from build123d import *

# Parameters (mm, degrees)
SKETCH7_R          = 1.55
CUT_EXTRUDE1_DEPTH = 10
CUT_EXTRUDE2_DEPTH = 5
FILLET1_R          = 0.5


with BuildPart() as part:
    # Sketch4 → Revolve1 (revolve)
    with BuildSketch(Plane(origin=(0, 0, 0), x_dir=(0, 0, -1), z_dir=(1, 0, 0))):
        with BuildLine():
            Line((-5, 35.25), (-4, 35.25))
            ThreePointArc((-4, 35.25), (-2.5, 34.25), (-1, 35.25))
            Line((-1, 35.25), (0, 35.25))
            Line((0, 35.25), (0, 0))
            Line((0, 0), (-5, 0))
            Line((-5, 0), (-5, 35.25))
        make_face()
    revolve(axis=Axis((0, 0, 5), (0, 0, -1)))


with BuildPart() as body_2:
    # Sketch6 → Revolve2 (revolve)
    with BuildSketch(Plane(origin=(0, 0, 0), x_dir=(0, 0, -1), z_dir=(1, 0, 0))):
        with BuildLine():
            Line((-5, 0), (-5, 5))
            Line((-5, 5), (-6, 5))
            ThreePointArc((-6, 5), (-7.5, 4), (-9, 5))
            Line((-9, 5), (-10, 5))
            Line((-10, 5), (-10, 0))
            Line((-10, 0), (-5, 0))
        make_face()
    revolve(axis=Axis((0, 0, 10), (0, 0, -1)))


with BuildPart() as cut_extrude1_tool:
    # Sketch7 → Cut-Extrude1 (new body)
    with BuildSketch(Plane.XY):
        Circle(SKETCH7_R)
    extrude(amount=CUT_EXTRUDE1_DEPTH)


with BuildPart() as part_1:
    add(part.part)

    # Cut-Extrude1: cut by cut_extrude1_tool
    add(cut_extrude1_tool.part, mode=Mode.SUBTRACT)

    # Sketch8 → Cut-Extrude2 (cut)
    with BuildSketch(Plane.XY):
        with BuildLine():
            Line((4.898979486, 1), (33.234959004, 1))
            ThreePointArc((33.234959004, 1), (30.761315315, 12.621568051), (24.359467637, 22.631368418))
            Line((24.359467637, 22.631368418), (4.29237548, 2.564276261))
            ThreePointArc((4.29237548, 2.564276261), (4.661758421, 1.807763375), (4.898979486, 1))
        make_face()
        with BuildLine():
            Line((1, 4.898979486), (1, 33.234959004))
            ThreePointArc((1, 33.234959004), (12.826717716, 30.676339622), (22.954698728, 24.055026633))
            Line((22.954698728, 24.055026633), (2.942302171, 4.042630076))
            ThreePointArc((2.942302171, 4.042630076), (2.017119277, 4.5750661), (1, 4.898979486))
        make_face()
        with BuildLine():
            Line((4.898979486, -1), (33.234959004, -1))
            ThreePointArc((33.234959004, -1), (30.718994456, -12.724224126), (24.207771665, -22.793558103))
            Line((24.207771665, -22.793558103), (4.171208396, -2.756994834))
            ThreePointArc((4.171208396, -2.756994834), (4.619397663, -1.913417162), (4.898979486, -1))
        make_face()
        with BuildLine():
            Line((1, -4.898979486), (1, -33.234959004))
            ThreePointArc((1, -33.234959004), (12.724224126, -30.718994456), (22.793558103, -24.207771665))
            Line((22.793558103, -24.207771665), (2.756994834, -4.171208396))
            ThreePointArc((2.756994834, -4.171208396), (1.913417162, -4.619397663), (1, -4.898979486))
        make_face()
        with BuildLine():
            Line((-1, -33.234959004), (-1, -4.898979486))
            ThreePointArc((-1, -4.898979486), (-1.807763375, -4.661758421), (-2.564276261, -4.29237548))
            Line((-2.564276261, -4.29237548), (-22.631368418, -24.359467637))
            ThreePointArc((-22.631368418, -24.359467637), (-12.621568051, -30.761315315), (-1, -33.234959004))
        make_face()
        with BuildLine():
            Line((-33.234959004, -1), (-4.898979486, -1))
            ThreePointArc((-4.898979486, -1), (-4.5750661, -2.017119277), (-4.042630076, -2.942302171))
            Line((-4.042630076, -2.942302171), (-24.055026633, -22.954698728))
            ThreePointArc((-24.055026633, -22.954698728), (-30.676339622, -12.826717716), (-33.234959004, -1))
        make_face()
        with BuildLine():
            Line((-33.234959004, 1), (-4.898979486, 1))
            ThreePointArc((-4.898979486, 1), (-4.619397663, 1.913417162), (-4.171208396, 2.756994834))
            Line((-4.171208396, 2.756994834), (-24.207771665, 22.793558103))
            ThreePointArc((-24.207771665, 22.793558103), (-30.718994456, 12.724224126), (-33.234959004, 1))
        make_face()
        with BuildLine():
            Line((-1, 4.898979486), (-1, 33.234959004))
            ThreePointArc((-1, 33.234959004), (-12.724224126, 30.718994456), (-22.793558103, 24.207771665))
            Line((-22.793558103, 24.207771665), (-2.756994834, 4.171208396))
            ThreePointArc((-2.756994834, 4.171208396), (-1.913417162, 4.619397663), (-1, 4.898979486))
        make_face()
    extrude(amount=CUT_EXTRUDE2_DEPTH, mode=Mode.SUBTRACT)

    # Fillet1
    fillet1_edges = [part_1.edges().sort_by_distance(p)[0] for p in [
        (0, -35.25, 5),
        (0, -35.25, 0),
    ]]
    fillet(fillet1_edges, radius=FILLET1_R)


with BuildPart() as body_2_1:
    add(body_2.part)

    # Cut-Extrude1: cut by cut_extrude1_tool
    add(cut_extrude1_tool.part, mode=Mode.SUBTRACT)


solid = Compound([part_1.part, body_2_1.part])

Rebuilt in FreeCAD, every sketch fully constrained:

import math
import FreeCAD as App
import Part
import Sketcher
Q = App.Units.Quantity


def edges_at(feature, points):
    """Names of the edges that pass closest to the given points."""
    edges = feature.Shape.Edges
    near = lambda p: min(range(len(edges)), key=lambda i: edges[i].distToShape(Part.Vertex(*p))[0])
    return sorted({f"Edge{near(p) + 1}" for p in points})

doc = App.newDocument("Part")
body = doc.addObject("PartDesign::Body", "Body")

sketch1 = body.newObject("Sketcher::SketchObject", "Sketch")
sketch1.AttachmentSupport = (doc.getObject("YZ_Plane"), [""])
sketch1.MapMode = "FlatFace"
sketch1.addGeometry(Part.LineSegment(App.Vector(35.25, 4, 0), App.Vector(35.25, 5, 0)), False)
sketch1.addGeometry(Part.LineSegment(App.Vector(35.25, 5, 0), App.Vector(0, 5, 0)), False)
sketch1.addGeometry(Part.LineSegment(App.Vector(0, 5, 0), App.Vector(0, 0, 0)), False)
sketch1.addGeometry(Part.LineSegment(App.Vector(0, 0, 0), App.Vector(35.25, 0, 0)), False)
sketch1.addGeometry(Part.LineSegment(App.Vector(35.25, 0, 0), App.Vector(35.25, 1, 0)), False)
sketch1.addGeometry(Part.ArcOfCircle(Part.Circle(App.Vector(35.875, 2.5, 0), App.Vector(0, 0, 1), 1.625), math.radians(112.619865), math.radians(247.380135)), False)
sketch1.addConstraint(Sketcher.Constraint("Coincident", 0, 2, 1, 1))
sketch1.addConstraint(Sketcher.Constraint("Coincident", 1, 2, 2, 1))
sketch1.addConstraint(Sketcher.Constraint("Coincident", 2, 2, 3, 1))
sketch1.addConstraint(Sketcher.Constraint("Coincident", 3, 2, 4, 1))
sketch1.addConstraint(Sketcher.Constraint("Coincident", 4, 2, 5, 2))
sketch1.addConstraint(Sketcher.Constraint("Coincident", 5, 1, 0, 1))
sketch1.addConstraint(Sketcher.Constraint("Vertical", 0))
sketch1.addConstraint(Sketcher.Constraint("Horizontal", 1))
sketch1.addConstraint(Sketcher.Constraint("Vertical", 2))
sketch1.addConstraint(Sketcher.Constraint("Horizontal", 3))
sketch1.addConstraint(Sketcher.Constraint("Vertical", 4))
sketch1.addConstraint(Sketcher.Constraint("Coincident", 2, 2, -1, 1))
sketch1.addConstraint(Sketcher.Constraint("Vertical", 0, 2, 3, 2))
sketch1.addConstraint(Sketcher.Constraint("Equal", 0, 4))
sketch1.addConstraint(Sketcher.Constraint("DistanceY", 0, 1, 0, 2, 1.0))
sketch1.addConstraint(Sketcher.Constraint("DistanceY", 2, 2, 2, 1, 5.0))
sketch1.addConstraint(Sketcher.Constraint("Radius", 5, 1.625))
sketch1.addConstraint(Sketcher.Constraint("DistanceX", 1, 2, 1, 1, 35.25))
revolution = body.newObject("PartDesign::Revolution", "Revolution")
revolution.Profile = sketch1
revolution.ReferenceAxis = (sketch1, ["V_Axis"])
revolution.Angle = 360
body2 = doc.addObject("PartDesign::Body", "Body001")

sketch2 = body2.newObject("Sketcher::SketchObject", "Sketch001")
sketch2.AttachmentSupport = (doc.getObject("YZ_Plane001"), [""])
sketch2.MapMode = "FlatFace"
sketch2.addGeometry(Part.LineSegment(App.Vector(0, 5, 0), App.Vector(5, 5, 0)), False)
sketch2.addGeometry(Part.LineSegment(App.Vector(5, 5, 0), App.Vector(5, 6, 0)), False)
sketch2.addGeometry(Part.ArcOfCircle(Part.Circle(App.Vector(5.625, 7.5, 0), App.Vector(0, 0, 1), 1.625), math.radians(112.619865), math.radians(247.380135)), False)
sketch2.addGeometry(Part.LineSegment(App.Vector(5, 9, 0), App.Vector(5, 10, 0)), False)
sketch2.addGeometry(Part.LineSegment(App.Vector(5, 10, 0), App.Vector(0, 10, 0)), False)
sketch2.addGeometry(Part.LineSegment(App.Vector(0, 10, 0), App.Vector(0, 5, 0)), False)
sketch2.addConstraint(Sketcher.Constraint("Coincident", 0, 2, 1, 1))
sketch2.addConstraint(Sketcher.Constraint("Coincident", 1, 2, 2, 2))
sketch2.addConstraint(Sketcher.Constraint("Coincident", 2, 1, 3, 1))
sketch2.addConstraint(Sketcher.Constraint("Coincident", 3, 2, 4, 1))
sketch2.addConstraint(Sketcher.Constraint("Coincident", 4, 2, 5, 1))
sketch2.addConstraint(Sketcher.Constraint("Coincident", 5, 2, 0, 1))
sketch2.addConstraint(Sketcher.Constraint("Horizontal", 0))
sketch2.addConstraint(Sketcher.Constraint("Vertical", 1))
sketch2.addConstraint(Sketcher.Constraint("Vertical", 3))
sketch2.addConstraint(Sketcher.Constraint("Horizontal", 4))
sketch2.addConstraint(Sketcher.Constraint("Vertical", 5))
sketch2.addConstraint(Sketcher.Constraint("PointOnObject", 4, 2, -2))
sketch2.addConstraint(Sketcher.Constraint("Vertical", 1, 2, 2, 1))
sketch2.addConstraint(Sketcher.Constraint("Equal", 1, 3))
sketch2.addConstraint(Sketcher.Constraint("Equal", 4, 5))
sketch2.addConstraint(Sketcher.Constraint("DistanceX", 0, 1, 0, 2, 5.0))
sketch2.addConstraint(Sketcher.Constraint("DistanceY", 1, 1, 1, 2, 1.0))
sketch2.addConstraint(Sketcher.Constraint("DistanceY", -1, 1, 0, 2, 5.0))
sketch2.addConstraint(Sketcher.Constraint("Radius", 2, 1.625))
revolution2 = body2.newObject("PartDesign::Revolution", "Revolution001")
revolution2.Profile = sketch2
revolution2.ReferenceAxis = (sketch2, ["V_Axis"])
revolution2.Angle = 360
body3 = doc.addObject("PartDesign::Body", "Body002")

sketch3 = body3.newObject("Sketcher::SketchObject", "Sketch002")
sketch3.AttachmentSupport = (doc.getObject("XY_Plane002"), [""])
sketch3.MapMode = "FlatFace"
sketch3.addGeometry(Part.Circle(App.Vector(0, 0, 0), App.Vector(0, 0, 1), 1.55), False)
sketch3.addConstraint(Sketcher.Constraint("Coincident", 0, 3, -1, 1))
sketch3.addConstraint(Sketcher.Constraint("Diameter", 0, 3.1))
pad1 = body3.newObject("PartDesign::Pad", "Pad")
pad1.Profile = sketch3
pad1.Length = 10
doc.recompute()

body4 = doc.addObject("PartDesign::Body", "Body003")
body4.BaseFeature = body3
boolean = body.newObject("PartDesign::Boolean", "Boolean")
boolean.Type = "Cut"
boolean.addObjects([body4])
doc.recompute()

sketch4 = body.newObject("Sketcher::SketchObject", "Sketch003")
sketch4.AttachmentSupport = (doc.getObject("XY_Plane"), [""])
sketch4.MapMode = "FlatFace"
sketch4.addGeometry(Part.LineSegment(App.Vector(4.898979, 1, 0), App.Vector(33.234959, 1, 0)), False)
sketch4.addGeometry(Part.ArcOfCircle(Part.Circle(App.Vector(0, 0, 0), App.Vector(0, 0, 1), 33.25), math.radians(1.723441), math.radians(42.893883)), False)
sketch4.addGeometry(Part.LineSegment(App.Vector(24.359468, 22.631368, 0), App.Vector(4.292375, 2.564276, 0)), False)
sketch4.addGeometry(Part.ArcOfCircle(Part.Circle(App.Vector(0, 0, 0), App.Vector(0, 0, 1), 5), math.radians(11.536959), math.radians(30.854204)), False)
sketch4.addGeometry(Part.LineSegment(App.Vector(1, 33.234959, 0), App.Vector(1, 4.898979, 0)), False)
sketch4.addGeometry(Part.ArcOfCircle(Part.Circle(App.Vector(0, 0, 0), App.Vector(0, 0, 1), 5), math.radians(53.952168), math.radians(78.463041)), False)
sketch4.addGeometry(Part.LineSegment(App.Vector(2.942302, 4.04263, 0), App.Vector(22.954699, 24.055027, 0)), False)
sketch4.addGeometry(Part.ArcOfCircle(Part.Circle(App.Vector(0, 0, 0), App.Vector(0, 0, 1), 33.25), math.radians(46.340842), math.radians(88.276559)), False)
sketch4.addGeometry(Part.LineSegment(App.Vector(33.234959, -1, 0), App.Vector(4.898979, -1, 0)), False)
sketch4.addGeometry(Part.ArcOfCircle(Part.Circle(App.Vector(0, 0, 0), App.Vector(0, 0, 1), 5), math.radians(-33.463041), math.radians(-11.536959)), False)
sketch4.addGeometry(Part.LineSegment(App.Vector(4.171208, -2.756995, 0), App.Vector(24.207772, -22.793558, 0)), False)
sketch4.addGeometry(Part.ArcOfCircle(Part.Circle(App.Vector(0, 0, 0), App.Vector(0, 0, 1), 33.25), math.radians(-43.276559), math.radians(-1.723441)), False)
sketch4.addGeometry(Part.LineSegment(App.Vector(1, -4.898979, 0), App.Vector(1, -33.234959, 0)), False)
sketch4.addGeometry(Part.ArcOfCircle(Part.Circle(App.Vector(0, 0, 0), App.Vector(0, 0, 1), 33.25), math.radians(-88.276559), math.radians(-46.723441)), False)
sketch4.addGeometry(Part.LineSegment(App.Vector(22.793558, -24.207772, 0), App.Vector(2.756995, -4.171208, 0)), False)
sketch4.addGeometry(Part.ArcOfCircle(Part.Circle(App.Vector(0, 0, 0), App.Vector(0, 0, 1), 5), math.radians(-78.463041), math.radians(-56.536959)), False)
sketch4.addGeometry(Part.LineSegment(App.Vector(-1, -33.234959, 0), App.Vector(-1, -4.898979, 0)), False)
sketch4.addGeometry(Part.ArcOfCircle(Part.Circle(App.Vector(0, 0, 0), App.Vector(0, 0, 1), 5), math.radians(-120.854204), math.radians(-101.536959)), False)
sketch4.addGeometry(Part.LineSegment(App.Vector(-2.564276, -4.292375, 0), App.Vector(-22.631368, -24.359468, 0)), False)
sketch4.addGeometry(Part.ArcOfCircle(Part.Circle(App.Vector(0, 0, 0), App.Vector(0, 0, 1), 33.25), math.radians(-132.893883), math.radians(-91.723441)), False)
sketch4.addGeometry(Part.LineSegment(App.Vector(-4.898979, -1, 0), App.Vector(-33.234959, -1, 0)), False)
sketch4.addGeometry(Part.ArcOfCircle(Part.Circle(App.Vector(0, 0, 0), App.Vector(0, 0, 1), 33.25), math.radians(-178.276559), math.radians(-136.340842)), False)
sketch4.addGeometry(Part.LineSegment(App.Vector(-24.055027, -22.954699, 0), App.Vector(-4.04263, -2.942302, 0)), False)
sketch4.addGeometry(Part.ArcOfCircle(Part.Circle(App.Vector(0, 0, 0), App.Vector(0, 0, 1), 5), math.radians(-168.463041), math.radians(-143.952168)), False)
sketch4.addGeometry(Part.LineSegment(App.Vector(-33.234959, 1, 0), App.Vector(-4.898979, 1, 0)), False)
sketch4.addGeometry(Part.ArcOfCircle(Part.Circle(App.Vector(0, 0, 0), App.Vector(0, 0, 1), 5), math.radians(146.536959), math.radians(168.463041)), False)
sketch4.addGeometry(Part.LineSegment(App.Vector(-4.171208, 2.756995, 0), App.Vector(-24.207772, 22.793558, 0)), False)
sketch4.addGeometry(Part.ArcOfCircle(Part.Circle(App.Vector(0, 0, 0), App.Vector(0, 0, 1), 33.25), math.radians(136.723441), math.radians(178.276559)), False)
sketch4.addGeometry(Part.LineSegment(App.Vector(-1, 4.898979, 0), App.Vector(-1, 33.234959, 0)), False)
sketch4.addGeometry(Part.ArcOfCircle(Part.Circle(App.Vector(0, 0, 0), App.Vector(0, 0, 1), 33.25), math.radians(91.723441), math.radians(133.276559)), False)
sketch4.addGeometry(Part.LineSegment(App.Vector(-22.793558, 24.207772, 0), App.Vector(-2.756995, 4.171208, 0)), False)
sketch4.addGeometry(Part.ArcOfCircle(Part.Circle(App.Vector(0, 0, 0), App.Vector(0, 0, 1), 5), math.radians(101.536959), math.radians(123.463041)), False)
sketch4.addConstraint(Sketcher.Constraint("Coincident", 0, 2, 1, 1))
sketch4.addConstraint(Sketcher.Constraint("Coincident", 1, 2, 2, 1))
sketch4.addConstraint(Sketcher.Constraint("Coincident", 2, 2, 3, 2))
sketch4.addConstraint(Sketcher.Constraint("Coincident", 3, 1, 0, 1))
sketch4.addConstraint(Sketcher.Constraint("Coincident", 4, 2, 5, 2))
sketch4.addConstraint(Sketcher.Constraint("Coincident", 5, 1, 6, 1))
sketch4.addConstraint(Sketcher.Constraint("Coincident", 6, 2, 7, 1))
sketch4.addConstraint(Sketcher.Constraint("Coincident", 7, 2, 4, 1))
sketch4.addConstraint(Sketcher.Constraint("Coincident", 8, 2, 9, 2))
sketch4.addConstraint(Sketcher.Constraint("Coincident", 9, 1, 10, 1))
sketch4.addConstraint(Sketcher.Constraint("Coincident", 10, 2, 11, 1))
sketch4.addConstraint(Sketcher.Constraint("Coincident", 11, 2, 8, 1))
sketch4.addConstraint(Sketcher.Constraint("Coincident", 12, 2, 13, 1))
sketch4.addConstraint(Sketcher.Constraint("Coincident", 13, 2, 14, 1))
sketch4.addConstraint(Sketcher.Constraint("Coincident", 14, 2, 15, 2))
sketch4.addConstraint(Sketcher.Constraint("Coincident", 15, 1, 12, 1))
sketch4.addConstraint(Sketcher.Constraint("Coincident", 16, 2, 17, 2))
sketch4.addConstraint(Sketcher.Constraint("Coincident", 17, 1, 18, 1))
sketch4.addConstraint(Sketcher.Constraint("Coincident", 18, 2, 19, 1))
sketch4.addConstraint(Sketcher.Constraint("Coincident", 19, 2, 16, 1))
sketch4.addConstraint(Sketcher.Constraint("Coincident", 20, 2, 21, 1))
sketch4.addConstraint(Sketcher.Constraint("Coincident", 21, 2, 22, 1))
sketch4.addConstraint(Sketcher.Constraint("Coincident", 22, 2, 23, 2))
sketch4.addConstraint(Sketcher.Constraint("Coincident", 23, 1, 20, 1))
sketch4.addConstraint(Sketcher.Constraint("Coincident", 24, 2, 25, 2))
sketch4.addConstraint(Sketcher.Constraint("Coincident", 25, 1, 26, 1))
sketch4.addConstraint(Sketcher.Constraint("Coincident", 26, 2, 27, 1))
sketch4.addConstraint(Sketcher.Constraint("Coincident", 27, 2, 24, 1))
sketch4.addConstraint(Sketcher.Constraint("Coincident", 28, 2, 29, 1))
sketch4.addConstraint(Sketcher.Constraint("Coincident", 29, 2, 30, 1))
sketch4.addConstraint(Sketcher.Constraint("Coincident", 30, 2, 31, 2))
sketch4.addConstraint(Sketcher.Constraint("Coincident", 31, 1, 28, 1))
sketch4.addConstraint(Sketcher.Constraint("Horizontal", 0))
sketch4.addConstraint(Sketcher.Constraint("Vertical", 4))
sketch4.addConstraint(Sketcher.Constraint("Horizontal", 8))
sketch4.addConstraint(Sketcher.Constraint("Vertical", 12))
sketch4.addConstraint(Sketcher.Constraint("Vertical", 16))
sketch4.addConstraint(Sketcher.Constraint("Horizontal", 20))
sketch4.addConstraint(Sketcher.Constraint("Horizontal", 24))
sketch4.addConstraint(Sketcher.Constraint("Vertical", 28))
sketch4.addConstraint(Sketcher.Constraint("Coincident", 1, 3, -1, 1))
sketch4.addConstraint(Sketcher.Constraint("Coincident", 3, 3, -1, 1))
sketch4.addConstraint(Sketcher.Constraint("Coincident", 5, 3, -1, 1))
sketch4.addConstraint(Sketcher.Constraint("Coincident", 7, 3, -1, 1))
sketch4.addConstraint(Sketcher.Constraint("Coincident", 9, 3, -1, 1))
sketch4.addConstraint(Sketcher.Constraint("Coincident", 11, 3, -1, 1))
sketch4.addConstraint(Sketcher.Constraint("Coincident", 13, 3, -1, 1))
sketch4.addConstraint(Sketcher.Constraint("Coincident", 15, 3, -1, 1))
sketch4.addConstraint(Sketcher.Constraint("Coincident", 17, 3, -1, 1))
sketch4.addConstraint(Sketcher.Constraint("Coincident", 19, 3, -1, 1))
sketch4.addConstraint(Sketcher.Constraint("Coincident", 21, 3, -1, 1))
sketch4.addConstraint(Sketcher.Constraint("Coincident", 23, 3, -1, 1))
sketch4.addConstraint(Sketcher.Constraint("Coincident", 25, 3, -1, 1))
sketch4.addConstraint(Sketcher.Constraint("Coincident", 27, 3, -1, 1))
sketch4.addConstraint(Sketcher.Constraint("Coincident", 29, 3, -1, 1))
sketch4.addConstraint(Sketcher.Constraint("Coincident", 31, 3, -1, 1))
sketch4.addConstraint(Sketcher.Constraint("Equal", 3, 5))
sketch4.addConstraint(Sketcher.Constraint("Equal", 1, 7))
sketch4.addConstraint(Sketcher.Constraint("Equal", 5, 9))
sketch4.addConstraint(Sketcher.Constraint("Equal", 7, 11))
sketch4.addConstraint(Sketcher.Constraint("Equal", 11, 13))
sketch4.addConstraint(Sketcher.Constraint("Equal", 9, 15))
sketch4.addConstraint(Sketcher.Constraint("Equal", 15, 17))
sketch4.addConstraint(Sketcher.Constraint("Equal", 13, 19))
sketch4.addConstraint(Sketcher.Constraint("Equal", 19, 21))
sketch4.addConstraint(Sketcher.Constraint("Equal", 17, 23))
sketch4.addConstraint(Sketcher.Constraint("Equal", 23, 25))
sketch4.addConstraint(Sketcher.Constraint("Equal", 21, 27))
sketch4.addConstraint(Sketcher.Constraint("Equal", 27, 29))
sketch4.addConstraint(Sketcher.Constraint("Equal", 25, 31))
sketch4.addConstraint(Sketcher.Constraint("Parallel", 2, 6))
sketch4.addConstraint(Sketcher.Constraint("Perpendicular", 6, 10))
sketch4.addConstraint(Sketcher.Constraint("Parallel", 10, 14))
sketch4.addConstraint(Sketcher.Constraint("Perpendicular", 14, 18))
sketch4.addConstraint(Sketcher.Constraint("Parallel", 18, 22))
sketch4.addConstraint(Sketcher.Constraint("Perpendicular", 22, 26))
sketch4.addConstraint(Sketcher.Constraint("Parallel", 26, 30))
sketch4.addConstraint(Sketcher.Constraint("Horizontal", 15, 1, 16, 2))
sketch4.addConstraint(Sketcher.Constraint("Horizontal", 11, 2, 20, 2))
sketch4.addConstraint(Sketcher.Constraint("Horizontal", 3, 1, 24, 2))
sketch4.addConstraint(Sketcher.Constraint("Horizontal", 7, 2, 28, 2))
sketch4.addConstraint(Sketcher.Constraint("Vertical", 3, 1, 8, 2))
sketch4.addConstraint(Sketcher.Constraint("Vertical", 7, 2, 12, 2))
sketch4.addConstraint(Sketcher.Constraint("Equal", 24, 4))
sketch4.addConstraint(Sketcher.Constraint("Equal", 10, 14))
sketch4.addConstraint(Sketcher.Constraint("Equal", 2, 18))
sketch4.addConstraint(Sketcher.Constraint("Equal", 6, 22))
sketch4.addConstraint(Sketcher.Constraint("Equal", 14, 26))
sketch4.addConstraint(Sketcher.Constraint("Equal", 26, 30))
sketch4.addConstraint(Sketcher.Constraint("Radius", 3, 5.0))
sketch4.addConstraint(Sketcher.Constraint("Angle", 2, Q("-135 deg")))
sketch4.addConstraint(Sketcher.Constraint("Radius", 1, 33.25))
sketch4.addConstraint(Sketcher.Constraint("DistanceY", -1, 1, 0, 2, 1.0))
sketch4.addConstraint(Sketcher.Constraint("DistanceX", -1, 1, 6, 2, 22.954699))
sketch4.addConstraint(Sketcher.Constraint("DistanceY", 12, 2, 10, 2, 10.441401))
sketch4.addConstraint(Sketcher.Constraint("DistanceY", -1, 1, 1, 2, 22.631368))
pocket1 = body.newObject("PartDesign::Pocket", "Pocket")
pocket1.Profile = sketch4
pocket1.Length = 5
pocket1.Reversed = True
doc.recompute()

fillet = body.newObject("PartDesign::Fillet", "Fillet")
fillet.Base = (pocket1, edges_at(pocket1, [(0, -35.25, 5), (0, -35.25, 0)]))
fillet.Radius = 0.5
doc.recompute()

boolean2 = body2.newObject("PartDesign::Boolean", "Boolean001")
boolean2.Type = "Cut"
boolean2.addObjects([body3])

doc.recompute()
